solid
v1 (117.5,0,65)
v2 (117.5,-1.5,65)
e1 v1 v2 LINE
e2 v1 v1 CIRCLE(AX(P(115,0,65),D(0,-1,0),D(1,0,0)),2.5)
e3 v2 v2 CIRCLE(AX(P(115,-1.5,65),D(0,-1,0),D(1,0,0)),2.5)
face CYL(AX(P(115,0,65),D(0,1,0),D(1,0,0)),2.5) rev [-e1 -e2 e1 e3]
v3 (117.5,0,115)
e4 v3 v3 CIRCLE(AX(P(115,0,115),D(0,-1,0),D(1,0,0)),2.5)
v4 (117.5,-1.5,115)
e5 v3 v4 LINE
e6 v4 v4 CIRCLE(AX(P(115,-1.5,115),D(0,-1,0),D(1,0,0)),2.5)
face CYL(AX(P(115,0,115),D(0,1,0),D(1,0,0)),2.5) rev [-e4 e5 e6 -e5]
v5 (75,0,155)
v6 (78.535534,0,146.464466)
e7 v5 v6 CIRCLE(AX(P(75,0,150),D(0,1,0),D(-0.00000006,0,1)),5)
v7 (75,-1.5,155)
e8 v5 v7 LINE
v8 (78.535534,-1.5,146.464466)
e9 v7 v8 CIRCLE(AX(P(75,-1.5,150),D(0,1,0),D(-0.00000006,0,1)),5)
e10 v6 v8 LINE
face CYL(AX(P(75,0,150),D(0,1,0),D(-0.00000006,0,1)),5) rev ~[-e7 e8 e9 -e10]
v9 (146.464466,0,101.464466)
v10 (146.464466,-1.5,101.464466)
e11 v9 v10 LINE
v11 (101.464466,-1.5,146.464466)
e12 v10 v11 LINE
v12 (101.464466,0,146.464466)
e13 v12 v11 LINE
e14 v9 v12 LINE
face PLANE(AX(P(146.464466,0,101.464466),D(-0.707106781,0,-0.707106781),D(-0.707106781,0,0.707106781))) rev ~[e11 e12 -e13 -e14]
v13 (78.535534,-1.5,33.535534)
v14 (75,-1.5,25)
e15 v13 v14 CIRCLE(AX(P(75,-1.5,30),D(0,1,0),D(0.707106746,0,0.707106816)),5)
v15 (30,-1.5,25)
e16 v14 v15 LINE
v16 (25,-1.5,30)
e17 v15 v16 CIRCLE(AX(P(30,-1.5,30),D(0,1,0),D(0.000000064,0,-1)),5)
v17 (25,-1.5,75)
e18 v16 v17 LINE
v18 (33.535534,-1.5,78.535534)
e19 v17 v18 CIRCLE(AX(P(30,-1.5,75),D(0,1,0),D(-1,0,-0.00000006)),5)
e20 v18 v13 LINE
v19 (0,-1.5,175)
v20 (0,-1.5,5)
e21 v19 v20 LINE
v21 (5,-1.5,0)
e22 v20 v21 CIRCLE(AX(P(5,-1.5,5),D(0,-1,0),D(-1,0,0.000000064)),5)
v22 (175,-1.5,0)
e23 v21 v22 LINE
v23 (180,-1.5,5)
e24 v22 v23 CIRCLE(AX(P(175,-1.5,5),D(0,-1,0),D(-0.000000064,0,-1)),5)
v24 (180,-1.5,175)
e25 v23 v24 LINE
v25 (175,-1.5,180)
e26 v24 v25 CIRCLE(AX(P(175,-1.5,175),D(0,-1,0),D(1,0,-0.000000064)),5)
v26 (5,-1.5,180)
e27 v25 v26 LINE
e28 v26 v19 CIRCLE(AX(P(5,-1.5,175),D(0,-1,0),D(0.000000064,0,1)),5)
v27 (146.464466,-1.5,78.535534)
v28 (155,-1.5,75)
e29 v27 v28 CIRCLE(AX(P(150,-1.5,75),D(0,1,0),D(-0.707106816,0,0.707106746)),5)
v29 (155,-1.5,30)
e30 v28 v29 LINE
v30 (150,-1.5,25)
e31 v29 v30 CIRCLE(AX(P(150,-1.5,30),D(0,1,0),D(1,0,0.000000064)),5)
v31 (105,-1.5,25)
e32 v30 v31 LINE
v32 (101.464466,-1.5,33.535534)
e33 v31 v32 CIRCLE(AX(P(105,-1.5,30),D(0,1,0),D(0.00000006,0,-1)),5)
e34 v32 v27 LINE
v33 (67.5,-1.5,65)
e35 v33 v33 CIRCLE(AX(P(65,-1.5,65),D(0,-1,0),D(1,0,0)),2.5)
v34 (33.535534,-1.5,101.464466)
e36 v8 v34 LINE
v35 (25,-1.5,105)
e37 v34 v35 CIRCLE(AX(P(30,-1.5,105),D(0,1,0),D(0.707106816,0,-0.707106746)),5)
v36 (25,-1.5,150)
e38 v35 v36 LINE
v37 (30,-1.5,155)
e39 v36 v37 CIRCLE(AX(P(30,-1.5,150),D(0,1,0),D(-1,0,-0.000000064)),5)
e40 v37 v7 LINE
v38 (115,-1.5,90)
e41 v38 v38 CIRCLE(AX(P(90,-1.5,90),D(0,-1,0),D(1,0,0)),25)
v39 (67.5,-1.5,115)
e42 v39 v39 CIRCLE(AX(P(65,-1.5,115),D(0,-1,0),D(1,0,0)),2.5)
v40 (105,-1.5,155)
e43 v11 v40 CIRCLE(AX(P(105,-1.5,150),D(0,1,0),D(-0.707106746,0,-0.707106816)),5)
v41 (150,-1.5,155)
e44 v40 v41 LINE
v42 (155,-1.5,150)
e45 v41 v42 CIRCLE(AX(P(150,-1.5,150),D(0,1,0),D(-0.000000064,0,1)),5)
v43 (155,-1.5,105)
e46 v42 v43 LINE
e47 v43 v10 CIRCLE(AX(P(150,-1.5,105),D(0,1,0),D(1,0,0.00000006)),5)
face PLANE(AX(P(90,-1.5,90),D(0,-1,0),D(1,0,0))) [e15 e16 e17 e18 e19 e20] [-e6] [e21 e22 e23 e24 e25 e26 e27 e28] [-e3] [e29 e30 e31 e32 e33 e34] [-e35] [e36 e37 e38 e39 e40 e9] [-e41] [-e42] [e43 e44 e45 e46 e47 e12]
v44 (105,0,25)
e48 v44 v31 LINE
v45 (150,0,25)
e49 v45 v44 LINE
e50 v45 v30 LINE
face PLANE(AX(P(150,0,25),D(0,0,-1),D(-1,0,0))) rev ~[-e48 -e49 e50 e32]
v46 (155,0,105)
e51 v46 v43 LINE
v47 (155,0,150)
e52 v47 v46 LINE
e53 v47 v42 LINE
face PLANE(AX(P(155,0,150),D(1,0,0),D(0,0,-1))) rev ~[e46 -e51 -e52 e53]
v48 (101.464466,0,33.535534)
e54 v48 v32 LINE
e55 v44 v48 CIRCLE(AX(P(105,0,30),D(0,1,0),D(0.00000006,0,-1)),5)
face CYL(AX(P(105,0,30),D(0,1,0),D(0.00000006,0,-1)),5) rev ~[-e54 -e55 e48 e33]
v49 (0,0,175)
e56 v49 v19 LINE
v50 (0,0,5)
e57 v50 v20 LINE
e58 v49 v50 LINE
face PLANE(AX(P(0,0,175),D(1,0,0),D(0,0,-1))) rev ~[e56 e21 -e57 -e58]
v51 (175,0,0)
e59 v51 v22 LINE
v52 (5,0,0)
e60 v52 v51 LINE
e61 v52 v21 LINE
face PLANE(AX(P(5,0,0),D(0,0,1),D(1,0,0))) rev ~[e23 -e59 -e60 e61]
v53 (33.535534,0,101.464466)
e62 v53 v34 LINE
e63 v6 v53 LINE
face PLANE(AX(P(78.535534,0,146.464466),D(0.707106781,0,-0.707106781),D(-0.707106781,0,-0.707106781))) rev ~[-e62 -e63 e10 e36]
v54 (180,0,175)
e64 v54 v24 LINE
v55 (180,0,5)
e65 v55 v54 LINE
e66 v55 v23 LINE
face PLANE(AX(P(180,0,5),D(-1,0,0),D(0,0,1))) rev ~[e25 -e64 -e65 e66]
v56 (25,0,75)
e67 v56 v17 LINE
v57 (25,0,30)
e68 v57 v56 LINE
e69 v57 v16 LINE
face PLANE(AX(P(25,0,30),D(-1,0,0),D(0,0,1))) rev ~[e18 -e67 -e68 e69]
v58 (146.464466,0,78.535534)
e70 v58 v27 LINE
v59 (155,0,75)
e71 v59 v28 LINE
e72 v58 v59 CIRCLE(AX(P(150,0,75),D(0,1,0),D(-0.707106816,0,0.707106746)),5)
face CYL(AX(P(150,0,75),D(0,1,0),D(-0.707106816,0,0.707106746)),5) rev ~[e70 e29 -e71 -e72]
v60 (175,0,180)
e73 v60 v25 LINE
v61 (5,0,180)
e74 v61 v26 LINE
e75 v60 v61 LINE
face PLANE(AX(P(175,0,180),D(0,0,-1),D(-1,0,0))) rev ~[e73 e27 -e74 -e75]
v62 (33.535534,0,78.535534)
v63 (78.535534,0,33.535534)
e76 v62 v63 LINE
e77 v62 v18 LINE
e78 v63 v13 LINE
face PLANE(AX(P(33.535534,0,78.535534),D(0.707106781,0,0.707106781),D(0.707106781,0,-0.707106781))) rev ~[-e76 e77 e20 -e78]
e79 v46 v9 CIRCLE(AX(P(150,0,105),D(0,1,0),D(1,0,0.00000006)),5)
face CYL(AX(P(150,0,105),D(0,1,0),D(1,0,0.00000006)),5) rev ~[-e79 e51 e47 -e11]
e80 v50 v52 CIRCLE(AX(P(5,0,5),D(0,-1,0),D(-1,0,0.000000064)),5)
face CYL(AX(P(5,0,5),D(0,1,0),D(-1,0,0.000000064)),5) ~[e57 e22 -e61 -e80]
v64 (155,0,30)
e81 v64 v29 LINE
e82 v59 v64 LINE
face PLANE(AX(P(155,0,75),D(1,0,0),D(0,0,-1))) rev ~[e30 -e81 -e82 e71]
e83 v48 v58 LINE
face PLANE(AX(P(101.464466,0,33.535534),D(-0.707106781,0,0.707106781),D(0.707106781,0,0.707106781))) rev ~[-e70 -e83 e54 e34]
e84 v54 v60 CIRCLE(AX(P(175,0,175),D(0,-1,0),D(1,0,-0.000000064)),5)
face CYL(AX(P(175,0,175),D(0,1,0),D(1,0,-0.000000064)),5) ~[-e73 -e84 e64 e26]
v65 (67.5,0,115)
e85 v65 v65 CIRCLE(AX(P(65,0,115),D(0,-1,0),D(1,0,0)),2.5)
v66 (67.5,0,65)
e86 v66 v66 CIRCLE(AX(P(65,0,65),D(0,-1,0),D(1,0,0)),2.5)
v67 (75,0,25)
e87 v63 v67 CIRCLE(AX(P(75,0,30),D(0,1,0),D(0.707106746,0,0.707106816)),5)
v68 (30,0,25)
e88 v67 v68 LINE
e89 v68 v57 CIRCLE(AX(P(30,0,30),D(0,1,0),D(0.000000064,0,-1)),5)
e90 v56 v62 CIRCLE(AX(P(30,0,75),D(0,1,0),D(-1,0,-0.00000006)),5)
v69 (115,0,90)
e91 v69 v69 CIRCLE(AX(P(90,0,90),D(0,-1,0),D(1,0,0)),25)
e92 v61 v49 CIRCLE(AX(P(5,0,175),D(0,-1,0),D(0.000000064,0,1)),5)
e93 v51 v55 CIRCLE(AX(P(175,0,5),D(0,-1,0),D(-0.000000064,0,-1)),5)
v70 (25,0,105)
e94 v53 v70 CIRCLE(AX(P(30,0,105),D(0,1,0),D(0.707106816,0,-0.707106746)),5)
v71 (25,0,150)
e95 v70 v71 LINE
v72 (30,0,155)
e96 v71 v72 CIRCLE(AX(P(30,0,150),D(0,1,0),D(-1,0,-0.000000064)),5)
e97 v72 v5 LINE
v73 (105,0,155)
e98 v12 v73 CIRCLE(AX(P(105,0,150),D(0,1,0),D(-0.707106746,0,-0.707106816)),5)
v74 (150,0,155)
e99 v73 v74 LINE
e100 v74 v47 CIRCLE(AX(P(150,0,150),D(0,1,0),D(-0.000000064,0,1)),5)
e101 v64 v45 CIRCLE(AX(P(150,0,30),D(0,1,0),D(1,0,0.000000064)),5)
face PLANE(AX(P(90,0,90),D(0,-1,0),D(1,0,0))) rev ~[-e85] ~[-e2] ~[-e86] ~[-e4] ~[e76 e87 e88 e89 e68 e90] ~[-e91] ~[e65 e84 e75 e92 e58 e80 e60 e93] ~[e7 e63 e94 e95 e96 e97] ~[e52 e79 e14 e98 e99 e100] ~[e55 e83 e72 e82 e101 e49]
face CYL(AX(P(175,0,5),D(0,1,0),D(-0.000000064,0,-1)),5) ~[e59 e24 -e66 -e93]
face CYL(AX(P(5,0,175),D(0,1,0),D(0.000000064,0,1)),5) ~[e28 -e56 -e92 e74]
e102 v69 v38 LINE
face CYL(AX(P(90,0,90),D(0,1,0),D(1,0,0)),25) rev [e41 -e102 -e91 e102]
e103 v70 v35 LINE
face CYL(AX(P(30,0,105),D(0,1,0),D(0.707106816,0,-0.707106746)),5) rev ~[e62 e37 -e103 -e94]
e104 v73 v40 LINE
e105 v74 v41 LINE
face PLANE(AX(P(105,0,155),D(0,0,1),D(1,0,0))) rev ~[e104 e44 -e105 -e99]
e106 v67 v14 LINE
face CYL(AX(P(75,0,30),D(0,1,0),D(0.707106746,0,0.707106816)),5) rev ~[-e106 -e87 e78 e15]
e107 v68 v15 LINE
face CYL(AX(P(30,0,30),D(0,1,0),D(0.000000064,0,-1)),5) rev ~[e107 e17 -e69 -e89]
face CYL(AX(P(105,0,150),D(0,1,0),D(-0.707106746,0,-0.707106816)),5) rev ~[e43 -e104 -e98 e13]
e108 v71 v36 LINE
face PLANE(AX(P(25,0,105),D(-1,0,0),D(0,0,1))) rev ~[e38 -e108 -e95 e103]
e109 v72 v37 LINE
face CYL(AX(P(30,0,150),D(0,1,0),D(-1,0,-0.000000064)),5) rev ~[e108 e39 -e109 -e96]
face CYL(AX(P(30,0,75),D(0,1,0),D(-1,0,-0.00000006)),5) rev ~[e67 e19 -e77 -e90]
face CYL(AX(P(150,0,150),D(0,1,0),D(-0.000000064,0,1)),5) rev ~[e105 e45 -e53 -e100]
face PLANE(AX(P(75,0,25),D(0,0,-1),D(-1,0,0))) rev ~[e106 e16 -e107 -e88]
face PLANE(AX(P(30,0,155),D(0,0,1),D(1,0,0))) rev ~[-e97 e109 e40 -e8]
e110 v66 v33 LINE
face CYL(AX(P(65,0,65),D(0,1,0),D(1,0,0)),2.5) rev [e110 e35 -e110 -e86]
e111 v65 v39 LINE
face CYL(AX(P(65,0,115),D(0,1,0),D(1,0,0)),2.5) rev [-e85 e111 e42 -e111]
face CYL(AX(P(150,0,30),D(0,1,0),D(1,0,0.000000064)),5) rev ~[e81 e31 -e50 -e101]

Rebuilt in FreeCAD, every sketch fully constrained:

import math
import FreeCAD as App
import Part
import Sketcher

doc = App.newDocument("Part")
params = doc.addObject("Spreadsheet::Sheet", "Params")
for row, (alias, value) in enumerate([
    ("sketch1_diameter", "5 mm"),
    ("sketch1_diameter2", "50 mm"),
    ("sketch1_radius", "5 mm"),
    ("sketch1_width", "170 mm"),
    ("sketch1_width2", "45 mm"),
    ("pad1_length", "1.5 mm"),
], start=1):
    params.set(f"A{row}", alias)
    params.set(f"B{row}", "=" + value)
    params.setAlias(f"B{row}", alias)

body = doc.addObject("PartDesign::Body", "Body")

# Sketch on XZ plane
sketch1 = body.newObject("Sketcher::SketchObject", "Sketch")
sketch1.AttachmentSupport = (doc.getObject("XZ_Plane"), [""])
sketch1.MapMode = "FlatFace"
sketch1.addGeometry(Part.ArcOfCircle(Part.Circle(App.Vector(5, 5, 0), App.Vector(0, 0, 1), 5), math.radians(180), math.radians(270)), False)
sketch1.addGeometry(Part.LineSegment(App.Vector(5, 0, 0), App.Vector(175, 0, 0)), False)
sketch1.addGeometry(Part.ArcOfCircle(Part.Circle(App.Vector(175, 5, 0), App.Vector(0, 0, 1), 5), math.radians(-90), math.radians(0)), False)
sketch1.addGeometry(Part.LineSegment(App.Vector(180, 5, 0), App.Vector(180, 175, 0)), False)
sketch1.addGeometry(Part.ArcOfCircle(Part.Circle(App.Vector(175, 175, 0), App.Vector(0, 0, 1), 5), math.radians(0), math.radians(90)), False)
sketch1.addGeometry(Part.LineSegment(App.Vector(175, 180, 0), App.Vector(5, 180, 0)), False)
sketch1.addGeometry(Part.ArcOfCircle(Part.Circle(App.Vector(5, 175, 0), App.Vector(0, 0, 1), 5), math.radians(90), math.radians(180)), False)
sketch1.addGeometry(Part.LineSegment(App.Vector(0, 175, 0), App.Vector(0, 5, 0)), False)
sketch1.addGeometry(Part.LineSegment(App.Vector(25, 30, 0), App.Vector(25, 75, 0)), False)
sketch1.addGeometry(Part.ArcOfCircle(Part.Circle(App.Vector(30, 75, 0), App.Vector(0, 0, 1), 5), math.radians(45), math.radians(180)), False)
sketch1.addGeometry(Part.LineSegment(App.Vector(33.5, 78.5, 0), App.Vector(78.5, 33.5, 0)), False)
sketch1.addGeometry(Part.ArcOfCircle(Part.Circle(App.Vector(75, 30, 0), App.Vector(0, 0, 1), 5), math.radians(-90), math.radians(45)), False)
sketch1.addGeometry(Part.LineSegment(App.Vector(75, 25, 0), App.Vector(30, 25, 0)), False)
sketch1.addGeometry(Part.ArcOfCircle(Part.Circle(App.Vector(30, 30, 0), App.Vector(0, 0, 1), 5), math.radians(180), math.radians(270)), False)
sketch1.addGeometry(Part.Circle(App.Vector(65, 65, 0), App.Vector(0, 0, 1), 2.5), False)
sketch1.addGeometry(Part.ArcOfCircle(Part.Circle(App.Vector(105, 30, 0), App.Vector(0, 0, 1), 5), math.radians(135), math.radians(270)), False)
sketch1.addGeometry(Part.LineSegment(App.Vector(101.5, 33.5, 0), App.Vector(146.5, 78.5, 0)), False)
sketch1.addGeometry(Part.ArcOfCircle(Part.Circle(App.Vector(150, 75, 0), App.Vector(0, 0, 1), 5), math.radians(0), math.radians(135)), False)
sketch1.addGeometry(Part.LineSegment(App.Vector(155, 75, 0), App.Vector(155, 30, 0)), False)
sketch1.addGeometry(Part.ArcOfCircle(Part.Circle(App.Vector(150, 30, 0), App.Vector(0, 0, 1), 5), math.radians(-90), math.radians(0)), False)
sketch1.addGeometry(Part.LineSegment(App.Vector(150, 25, 0), App.Vector(105, 25, 0)), False)
sketch1.addGeometry(Part.Circle(App.Vector(115, 65, 0), App.Vector(0, 0, 1), 2.5), False)
sketch1.addGeometry(Part.Circle(App.Vector(65, 115, 0), App.Vector(0, 0, 1), 2.5), False)
sketch1.addGeometry(Part.LineSegment(App.Vector(25, 105, 0), App.Vector(25, 150, 0)), False)
sketch1.addGeometry(Part.ArcOfCircle(Part.Circle(App.Vector(30, 150, 0), App.Vector(0, 0, 1), 5), math.radians(90), math.radians(180)), False)
sketch1.addGeometry(Part.LineSegment(App.Vector(30, 155, 0), App.Vector(75, 155, 0)), False)
sketch1.addGeometry(Part.ArcOfCircle(Part.Circle(App.Vector(75, 150, 0), App.Vector(0, 0, 1), 5), math.radians(-45), math.radians(90)), False)
sketch1.addGeometry(Part.LineSegment(App.Vector(78.5, 146.5, 0), App.Vector(33.5, 101.5, 0)), False)
sketch1.addGeometry(Part.ArcOfCircle(Part.Circle(App.Vector(30, 105, 0), App.Vector(0, 0, 1), 5), math.radians(180), math.radians(315)), False)
sketch1.addGeometry(Part.Circle(App.Vector(90, 90, 0), App.Vector(0, 0, 1), 25), False)
sketch1.addGeometry(Part.Circle(App.Vector(115, 115, 0), App.Vector(0, 0, 1), 2.5), False)
sketch1.addGeometry(Part.LineSegment(App.Vector(155, 150, 0), App.Vector(155, 105, 0)), False)
sketch1.addGeometry(Part.ArcOfCircle(Part.Circle(App.Vector(150, 105, 0), App.Vector(0, 0, 1), 5), math.radians(-135), math.radians(0)), False)
sketch1.addGeometry(Part.LineSegment(App.Vector(146.5, 101.5, 0), App.Vector(101.5, 146.5, 0)), False)
sketch1.addGeometry(Part.ArcOfCircle(Part.Circle(App.Vector(105, 150, 0), App.Vector(0, 0, 1), 5), math.radians(90), math.radians(225)), False)
sketch1.addGeometry(Part.LineSegment(App.Vector(105, 155, 0), App.Vector(150, 155, 0)), False)
sketch1.addGeometry(Part.ArcOfCircle(Part.Circle(App.Vector(150, 150, 0), App.Vector(0, 0, 1), 5), math.radians(0), math.radians(90)), False)
sketch1.addConstraint(Sketcher.Constraint("Tangent", 0, 2, 1, 1))
sketch1.addConstraint(Sketcher.Constraint("Tangent", 1, 2, 2, 1))
sketch1.addConstraint(Sketcher.Constraint("Tangent", 2, 2, 3, 1))
sketch1.addConstraint(Sketcher.Constraint("Tangent", 3, 2, 4, 1))
sketch1.addConstraint(Sketcher.Constraint("Tangent", 4, 2, 5, 1))
sketch1.addConstraint(Sketcher.Constraint("Tangent", 5, 2, 6, 1))
sketch1.addConstraint(Sketcher.Constraint("Tangent", 6, 2, 7, 1))
sketch1.addConstraint(Sketcher.Constraint("Tangent", 7, 2, 0, 1))
sketch1.addConstraint(Sketcher.Constraint("Tangent", 8, 2, 9, 2))
sketch1.addConstraint(Sketcher.Constraint("Tangent", 9, 1, 10, 1))
sketch1.addConstraint(Sketcher.Constraint("Tangent", 10, 2, 11, 2))
sketch1.addConstraint(Sketcher.Constraint("Tangent", 11, 1, 12, 1))
sketch1.addConstraint(Sketcher.Constraint("Tangent", 12, 2, 13, 2))
sketch1.addConstraint(Sketcher.Constraint("Tangent", 13, 1, 8, 1))
sketch1.addConstraint(Sketcher.Constraint("Tangent", 15, 1, 16, 1))
sketch1.addConstraint(Sketcher.Constraint("Tangent", 16, 2, 17, 2))
sketch1.addConstraint(Sketcher.Constraint("Tangent", 17, 1, 18, 1))
sketch1.addConstraint(Sketcher.Constraint("Tangent", 18, 2, 19, 2))
sketch1.addConstraint(Sketcher.Constraint("Tangent", 19, 1, 20, 1))
sketch1.addConstraint(Sketcher.Constraint("Tangent", 20, 2, 15, 2))
sketch1.addConstraint(Sketcher.Constraint("Tangent", 23, 2, 24, 2))
sketch1.addConstraint(Sketcher.Constraint("Tangent", 24, 1, 25, 1))
sketch1.addConstraint(Sketcher.Constraint("Tangent", 25, 2, 26, 2))
sketch1.addConstraint(Sketcher.Constraint("Tangent", 26, 1, 27, 1))
sketch1.addConstraint(Sketcher.Constraint("Tangent", 27, 2, 28, 2))
sketch1.addConstraint(Sketcher.Constraint("Tangent", 28, 1, 23, 1))
sketch1.addConstraint(Sketcher.Constraint("Tangent", 31, 2, 32, 2))
sketch1.addConstraint(Sketcher.Constraint("Tangent", 32, 1, 33, 1))
sketch1.addConstraint(Sketcher.Constraint("Tangent", 33, 2, 34, 2))
sketch1.addConstraint(Sketcher.Constraint("Tangent", 34, 1, 35, 1))
sketch1.addConstraint(Sketcher.Constraint("Tangent", 35, 2, 36, 2))
sketch1.addConstraint(Sketcher.Constraint("Tangent", 36, 1, 31, 1))
sketch1.addConstraint(Sketcher.Constraint("Horizontal", 1))
sketch1.addConstraint(Sketcher.Constraint("Vertical", 3))
sketch1.addConstraint(Sketcher.Constraint("Horizontal", 5))
sketch1.addConstraint(Sketcher.Constraint("Vertical", 7))
sketch1.addConstraint(Sketcher.Constraint("Vertical", 8))
sketch1.addConstraint(Sketcher.Constraint("Horizontal", 12))
sketch1.addConstraint(Sketcher.Constraint("Vertical", 18))
sketch1.addConstraint(Sketcher.Constraint("Horizontal", 20))
sketch1.addConstraint(Sketcher.Constraint("Vertical", 23))
sketch1.addConstraint(Sketcher.Constraint("Horizontal", 25))
sketch1.addConstraint(Sketcher.Constraint("Vertical", 31))
sketch1.addConstraint(Sketcher.Constraint("Horizontal", 35))
sketch1.addConstraint(Sketcher.Constraint("Equal", 0, 2))
sketch1.addConstraint(Sketcher.Constraint("Equal", 2, 4))
sketch1.addConstraint(Sketcher.Constraint("Equal", 4, 6))
sketch1.addConstraint(Sketcher.Constraint("Equal", 6, 9))
sketch1.addConstraint(Sketcher.Constraint("Equal", 9, 11))
sketch1.addConstraint(Sketcher.Constraint("Equal", 11, 13))
sketch1.addConstraint(Sketcher.Constraint("Equal", 13, 15))
sketch1.addConstraint(Sketcher.Constraint("Equal", 15, 17))
sketch1.addConstraint(Sketcher.Constraint("Equal", 17, 19))
sketch1.addConstraint(Sketcher.Constraint("Equal", 14, 21))
sketch1.addConstraint(Sketcher.Constraint("Equal", 21, 22))
sketch1.addConstraint(Sketcher.Constraint("Equal", 19, 24))
sketch1.addConstraint(Sketcher.Constraint("Equal", 24, 26))
sketch1.addConstraint(Sketcher.Constraint("Equal", 26, 28))
sketch1.addConstraint(Sketcher.Constraint("Equal", 22, 30))
sketch1.addConstraint(Sketcher.Constraint("Equal", 28, 32))
sketch1.addConstraint(Sketcher.Constraint("Equal", 32, 34))
sketch1.addConstraint(Sketcher.Constraint("Equal", 34, 36))
sketch1.addConstraint(Sketcher.Constraint("PointOnObject", 0, 2, -1))
sketch1.addConstraint(Sketcher.Constraint("PointOnObject", 6, 2, -2))
sketch1.addConstraint(Sketcher.Constraint("Perpendicular", 10, 16))
sketch1.addConstraint(Sketcher.Constraint("Parallel", 16, 27))
sketch1.addConstraint(Sketcher.Constraint("Perpendicular", 27, 33))
sketch1.addConstraint(Sketcher.Constraint("Horizontal", 13, 3, 15, 3))
sketch1.addConstraint(Sketcher.Constraint("Horizontal", 9, 3, 17, 3))
sketch1.addConstraint(Sketcher.Constraint("Horizontal", 14, 3, 21, 3))
sketch1.addConstraint(Sketcher.Constraint("Horizontal", 22, 3, 30, 3))
sketch1.addConstraint(Sketcher.Constraint("Horizontal", 28, 3, 32, 3))
sketch1.addConstraint(Sketcher.Constraint("Horizontal", 26, 3, 34, 3))
sketch1.addConstraint(Sketcher.Constraint("Horizontal", 10, 2, 15, 1))
sketch1.addConstraint(Sketcher.Constraint("Vertical", 14, 3, 22, 3))
sketch1.addConstraint(Sketcher.Constraint("Vertical", 13, 3, 24, 3))
sketch1.addConstraint(Sketcher.Constraint("Vertical", 11, 3, 26, 3))
sketch1.addConstraint(Sketcher.Constraint("Vertical", 21, 3, 30, 3))
sketch1.addConstraint(Sketcher.Constraint("Vertical", 19, 3, 32, 3))
sketch1.addConstraint(Sketcher.Constraint("Equal", 5, 3))
sketch1.addConstraint(Sketcher.Constraint("Diameter", 14, 5.0))
sketch1.addConstraint(Sketcher.Constraint("Diameter", 29, 50.0))
sketch1.addConstraint(Sketcher.Constraint("Radius", 0, 5.0))
sketch1.addConstraint(Sketcher.Constraint("DistanceX", 1, 1, 1, 2, 170.0))
sketch1.addConstraint(Sketcher.Constraint("DistanceX", 12, 2, 12, 1, 45.0))
sketch1.addConstraint(Sketcher.Constraint("DistanceX", -1, 1, 9, 3, 30.0))
sketch1.addConstraint(Sketcher.Constraint("DistanceY", -1, 1, 9, 3, 75.0))
sketch1.addConstraint(Sketcher.Constraint("DistanceX", -1, 1, 14, 3, 65.0))
sketch1.addConstraint(Sketcher.Constraint("DistanceY", -1, 1, 14, 3, 65.0))
sketch1.addConstraint(Sketcher.Constraint("DistanceX", -1, 1, 15, 3, 105.0))
sketch1.addConstraint(Sketcher.Constraint("DistanceX", -1, 1, 21, 3, 115.0))
sketch1.addConstraint(Sketcher.Constraint("DistanceY", -1, 1, 22, 3, 115.0))
sketch1.addConstraint(Sketcher.Constraint("DistanceY", -1, 1, 24, 3, 150.0))
sketch1.addConstraint(Sketcher.Constraint("DistanceX", -1, 1, 29, 3, 90.0))
sketch1.addConstraint(Sketcher.Constraint("DistanceY", -1, 1, 29, 3, 90.0))
sketch1.setExpression("Constraints[80]", "Params.sketch1_diameter")
sketch1.setExpression("Constraints[81]", "Params.sketch1_diameter2")
sketch1.setExpression("Constraints[82]", "Params.sketch1_radius")
sketch1.setExpression("Constraints[83]", "Params.sketch1_width")
sketch1.setExpression("Constraints[84]", "Params.sketch1_width2")
pad1 = body.newObject("PartDesign::Pad", "Pad")
pad1.Profile = sketch1
pad1.setExpression("Length", "Params.pad1_length")

doc.recompute()
